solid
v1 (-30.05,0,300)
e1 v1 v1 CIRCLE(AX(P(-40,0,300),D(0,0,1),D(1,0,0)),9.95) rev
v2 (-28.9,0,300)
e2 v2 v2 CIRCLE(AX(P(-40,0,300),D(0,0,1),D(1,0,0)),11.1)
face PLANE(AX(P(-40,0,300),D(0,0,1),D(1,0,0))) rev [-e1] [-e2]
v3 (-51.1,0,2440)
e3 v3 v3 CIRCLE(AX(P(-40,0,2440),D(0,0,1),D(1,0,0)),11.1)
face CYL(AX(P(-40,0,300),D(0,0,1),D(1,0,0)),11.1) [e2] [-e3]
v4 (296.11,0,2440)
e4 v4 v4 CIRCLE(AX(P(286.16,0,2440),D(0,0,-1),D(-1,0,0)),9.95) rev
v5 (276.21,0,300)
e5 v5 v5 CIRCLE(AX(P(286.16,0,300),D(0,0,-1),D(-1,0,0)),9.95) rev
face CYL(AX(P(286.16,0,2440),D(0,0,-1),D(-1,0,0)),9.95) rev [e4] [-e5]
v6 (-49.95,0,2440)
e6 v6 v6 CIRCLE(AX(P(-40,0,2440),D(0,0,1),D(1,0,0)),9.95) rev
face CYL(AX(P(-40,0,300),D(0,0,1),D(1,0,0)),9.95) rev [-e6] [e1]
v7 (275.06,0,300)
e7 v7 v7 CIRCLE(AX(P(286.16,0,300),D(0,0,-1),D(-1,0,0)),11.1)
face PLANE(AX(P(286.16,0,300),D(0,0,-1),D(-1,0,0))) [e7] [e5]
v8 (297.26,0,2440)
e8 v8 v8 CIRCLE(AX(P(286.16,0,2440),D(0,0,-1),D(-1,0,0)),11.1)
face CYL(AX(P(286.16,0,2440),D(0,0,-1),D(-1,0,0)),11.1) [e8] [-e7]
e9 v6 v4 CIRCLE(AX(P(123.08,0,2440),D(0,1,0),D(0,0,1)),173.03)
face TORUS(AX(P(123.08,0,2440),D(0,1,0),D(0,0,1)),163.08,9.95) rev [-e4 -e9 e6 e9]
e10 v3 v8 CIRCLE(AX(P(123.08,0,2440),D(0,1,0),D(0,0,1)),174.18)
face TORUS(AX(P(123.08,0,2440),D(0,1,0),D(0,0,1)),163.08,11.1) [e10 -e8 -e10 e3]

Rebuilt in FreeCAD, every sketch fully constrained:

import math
import FreeCAD as App
import Part
import Sketcher
Q = App.Units.Quantity

doc = App.newDocument("Part")
params = doc.addObject("Spreadsheet::Sheet", "Params")
for row, (alias, value) in enumerate([
    ("sketch1_diameter", "22.2 mm"),
    ("sketch1_diameter2", "19.9 mm"),
    ("sketch2_height", "2140 mm"),
    ("sketch2_radius", "163.08 mm"),
], start=1):
    params.set(f"A{row}", alias)
    params.set(f"B{row}", "=" + value)
    params.setAlias(f"B{row}", alias)

body = doc.addObject("PartDesign::Body", "Body")

# Sketch on XY plane
sketch1 = body.newObject("Sketcher::SketchObject", "Sketch")
sketch1.AttachmentSupport = (doc.getObject("XY_Plane"), [""])
sketch1.MapMode = "FlatFace"
sketch1.AttachmentOffset = App.Placement(App.Vector(0, 0, 300), App.Rotation())
sketch1.addGeometry(Part.Circle(App.Vector(286.16, 0, 0), App.Vector(0, 0, 1), 11.1), False)
sketch1.addGeometry(Part.Circle(App.Vector(286.16, 0, 0), App.Vector(0, 0, 1), 9.95), False)
sketch1.addConstraint(Sketcher.Constraint("Coincident", 1, 3, 0, 3))
sketch1.addConstraint(Sketcher.Constraint("PointOnObject", 0, 3, -1))
sketch1.addConstraint(Sketcher.Constraint("Diameter", 0, Q("22.2 mm")))
sketch1.addConstraint(Sketcher.Constraint("Diameter", 1, Q("19.9 mm")))
sketch1.addConstraint(Sketcher.Constraint("DistanceX", -1, 1, 0, 3, Q("286.16 mm")))
sketch1.setExpression("Constraints[2]", "Params.sketch1_diameter")
sketch1.setExpression("Constraints[3]", "Params.sketch1_diameter2")

# Sketch on XZ plane
sketch2 = body.newObject("Sketcher::SketchObject", "Sketch001")
sketch2.AttachmentSupport = (doc.getObject("XZ_Plane"), [""])
sketch2.MapMode = "FlatFace"
sketch2.addGeometry(Part.LineSegment(App.Vector(286.16, 300, 0), App.Vector(286.16, 2440, 0)), False)
sketch2.addGeometry(Part.ArcOfCircle(Part.Circle(App.Vector(123.08, 2440, 0), App.Vector(0, 0, 1), 163.08), math.radians(0), math.radians(180)), False)
sketch2.addGeometry(Part.LineSegment(App.Vector(-40, 2440, 0), App.Vector(-40, 300, 0)), False)
sketch2.addConstraint(Sketcher.Constraint("Tangent", 0, 2, 1, 1))
sketch2.addConstraint(Sketcher.Constraint("Tangent", 1, 2, 2, 1))
sketch2.addConstraint(Sketcher.Constraint("Vertical", 0))
sketch2.addConstraint(Sketcher.Constraint("Vertical", 2))
sketch2.addConstraint(Sketcher.Constraint("Horizontal", 0, 1, 2, 2))
sketch2.addConstraint(Sketcher.Constraint("DistanceY", 0, 1, 0, 2, Q("2140 mm")))
sketch2.addConstraint(Sketcher.Constraint("Radius", 1, Q("163.08 mm")))
sketch2.addConstraint(Sketcher.Constraint("DistanceY", -1, 1, 1, 3, Q("2440 mm")))
sketch2.addConstraint(Sketcher.Constraint("DistanceX", 1, 2, -1, 1, Q("40 mm")))
sketch2.setExpression("Constraints[5]", "Params.sketch2_height")
sketch2.setExpression("Constraints[6]", "Params.sketch2_radius")
doc.recompute()

additivepipe = body.newObject("PartDesign::AdditivePipe", "AdditivePipe")
additivepipe.Profile = sketch1
additivepipe.Spine = (sketch2, ["Edge1", "Edge2", "Edge3"])

doc.recompute()
